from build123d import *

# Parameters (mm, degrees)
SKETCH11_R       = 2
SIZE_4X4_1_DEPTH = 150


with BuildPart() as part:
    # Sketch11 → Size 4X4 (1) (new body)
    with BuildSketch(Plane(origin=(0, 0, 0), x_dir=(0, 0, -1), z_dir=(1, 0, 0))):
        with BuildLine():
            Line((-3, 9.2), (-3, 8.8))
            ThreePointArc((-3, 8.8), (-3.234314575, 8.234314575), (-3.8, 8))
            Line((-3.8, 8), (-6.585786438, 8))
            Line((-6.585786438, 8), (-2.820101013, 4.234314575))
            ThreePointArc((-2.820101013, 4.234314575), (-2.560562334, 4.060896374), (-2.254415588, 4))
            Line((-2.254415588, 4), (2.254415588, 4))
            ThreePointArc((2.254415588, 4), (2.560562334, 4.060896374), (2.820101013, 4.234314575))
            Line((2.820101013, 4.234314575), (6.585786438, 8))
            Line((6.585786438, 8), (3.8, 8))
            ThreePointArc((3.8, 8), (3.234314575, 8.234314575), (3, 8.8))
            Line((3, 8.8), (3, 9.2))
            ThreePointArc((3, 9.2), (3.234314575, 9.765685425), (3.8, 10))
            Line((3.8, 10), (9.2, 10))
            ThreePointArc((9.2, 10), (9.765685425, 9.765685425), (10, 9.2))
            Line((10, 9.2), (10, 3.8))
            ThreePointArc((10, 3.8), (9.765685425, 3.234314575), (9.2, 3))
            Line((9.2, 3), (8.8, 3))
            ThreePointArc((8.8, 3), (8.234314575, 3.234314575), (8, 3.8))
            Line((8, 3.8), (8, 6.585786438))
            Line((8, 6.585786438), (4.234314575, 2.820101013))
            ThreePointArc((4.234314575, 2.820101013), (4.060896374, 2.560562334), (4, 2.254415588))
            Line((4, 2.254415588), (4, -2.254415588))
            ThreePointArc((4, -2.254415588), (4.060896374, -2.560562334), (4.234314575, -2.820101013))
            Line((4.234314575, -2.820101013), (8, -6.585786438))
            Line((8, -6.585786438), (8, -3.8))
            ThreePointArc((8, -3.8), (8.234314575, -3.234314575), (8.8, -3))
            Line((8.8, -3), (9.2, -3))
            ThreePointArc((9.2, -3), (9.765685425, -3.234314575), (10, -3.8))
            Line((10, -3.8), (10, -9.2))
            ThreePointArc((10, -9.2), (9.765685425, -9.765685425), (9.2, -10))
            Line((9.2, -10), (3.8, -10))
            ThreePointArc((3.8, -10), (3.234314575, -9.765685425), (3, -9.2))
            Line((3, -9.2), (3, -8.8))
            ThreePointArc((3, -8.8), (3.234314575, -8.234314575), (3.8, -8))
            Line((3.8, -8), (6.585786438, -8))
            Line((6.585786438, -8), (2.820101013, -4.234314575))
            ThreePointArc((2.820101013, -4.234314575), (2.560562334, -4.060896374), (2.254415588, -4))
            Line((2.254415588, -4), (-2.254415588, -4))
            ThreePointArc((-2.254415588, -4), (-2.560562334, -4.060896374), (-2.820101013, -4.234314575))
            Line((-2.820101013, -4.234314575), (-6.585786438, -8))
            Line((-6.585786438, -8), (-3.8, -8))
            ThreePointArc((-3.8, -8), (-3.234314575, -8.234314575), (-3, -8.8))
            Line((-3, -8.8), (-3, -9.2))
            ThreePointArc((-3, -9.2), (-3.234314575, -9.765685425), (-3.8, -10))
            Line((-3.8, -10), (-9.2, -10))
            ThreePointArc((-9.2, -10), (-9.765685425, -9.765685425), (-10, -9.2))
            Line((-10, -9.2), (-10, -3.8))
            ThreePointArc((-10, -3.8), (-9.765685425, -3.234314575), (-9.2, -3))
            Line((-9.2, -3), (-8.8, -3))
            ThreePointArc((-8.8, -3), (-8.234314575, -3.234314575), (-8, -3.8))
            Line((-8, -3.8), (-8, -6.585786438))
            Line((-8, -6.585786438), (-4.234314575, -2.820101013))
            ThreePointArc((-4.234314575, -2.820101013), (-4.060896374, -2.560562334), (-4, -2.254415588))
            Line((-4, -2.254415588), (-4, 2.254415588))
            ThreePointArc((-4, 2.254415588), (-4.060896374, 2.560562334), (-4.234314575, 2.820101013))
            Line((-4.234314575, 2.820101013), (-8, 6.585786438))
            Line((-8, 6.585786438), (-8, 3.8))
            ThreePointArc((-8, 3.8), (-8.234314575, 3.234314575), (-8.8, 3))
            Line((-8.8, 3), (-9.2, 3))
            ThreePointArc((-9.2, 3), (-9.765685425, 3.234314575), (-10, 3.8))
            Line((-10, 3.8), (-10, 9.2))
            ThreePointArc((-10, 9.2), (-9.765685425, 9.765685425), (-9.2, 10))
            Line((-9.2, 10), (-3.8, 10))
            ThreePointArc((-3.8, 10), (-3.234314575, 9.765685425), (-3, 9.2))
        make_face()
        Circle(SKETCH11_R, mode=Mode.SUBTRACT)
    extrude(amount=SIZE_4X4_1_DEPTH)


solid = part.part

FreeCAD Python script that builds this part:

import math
import FreeCAD as App
import Part
import Sketcher
Q = App.Units.Quantity

doc = App.newDocument("Part")
body = doc.addObject("PartDesign::Body", "Body")

# Sketch on YZ plane
sketch1 = body.newObject("Sketcher::SketchObject", "Sketch")
sketch1.AttachmentSupport = (doc.getObject("YZ_Plane"), [""])
sketch1.MapMode = "FlatFace"
sketch1.addGeometry([
    Part.LineSegment(App.Vector(8.8, 3, 0), App.Vector(9.2, 3, 0)),  # 0
    Part.ArcOfCircle(Part.Circle(App.Vector(9.2, 3.8, 0), App.Vector(0, 0, 1), 0.8), math.radians(-90), math.radians(0)),  # 1
    Part.LineSegment(App.Vector(10, 3.8, 0), App.Vector(10, 9.2, 0)),  # 2
    Part.ArcOfCircle(Part.Circle(App.Vector(9.2, 9.2, 0), App.Vector(0, 0, 1), 0.8), math.radians(0), math.radians(90)),  # 3
    Part.LineSegment(App.Vector(9.2, 10, 0), App.Vector(3.8, 10, 0)),  # 4
    Part.ArcOfCircle(Part.Circle(App.Vector(3.8, 9.2, 0), App.Vector(0, 0, 1), 0.8), math.radians(90), math.radians(180)),  # 5
    Part.LineSegment(App.Vector(3, 9.2, 0), App.Vector(3, 8.8, 0)),  # 6
    Part.ArcOfCircle(Part.Circle(App.Vector(3.8, 8.8, 0), App.Vector(0, 0, 1), 0.8), math.radians(180), math.radians(270)),  # 7
    Part.LineSegment(App.Vector(3.8, 8, 0), App.Vector(6.59, 8, 0)),  # 8
    Part.LineSegment(App.Vector(6.59, 8, 0), App.Vector(2.82, 4.23, 0)),  # 9
    Part.ArcOfCircle(Part.Circle(App.Vector(2.25, 4.8, 0), App.Vector(0, 0, 1), 0.8), math.radians(-90), math.radians(-45)),  # 10
    Part.LineSegment(App.Vector(2.25, 4, 0), App.Vector(-2.25, 4, 0)),  # 11
    Part.ArcOfCircle(Part.Circle(App.Vector(-2.25, 4.8, 0), App.Vector(0, 0, 1), 0.8), math.radians(-135), math.radians(-90)),  # 12
    Part.LineSegment(App.Vector(-2.82, 4.23, 0), App.Vector(-6.59, 8, 0)),  # 13
    Part.LineSegment(App.Vector(-6.59, 8, 0), App.Vector(-3.8, 8, 0)),  # 14
    Part.ArcOfCircle(Part.Circle(App.Vector(-3.8, 8.8, 0), App.Vector(0, 0, 1), 0.8), math.radians(-90), math.radians(0)),  # 15
    Part.LineSegment(App.Vector(-3, 8.8, 0), App.Vector(-3, 9.2, 0)),  # 16
    Part.ArcOfCircle(Part.Circle(App.Vector(-3.8, 9.2, 0), App.Vector(0, 0, 1), 0.8), math.radians(0), math.radians(90)),  # 17
    Part.LineSegment(App.Vector(-3.8, 10, 0), App.Vector(-9.2, 10, 0)),  # 18
    Part.ArcOfCircle(Part.Circle(App.Vector(-9.2, 9.2, 0), App.Vector(0, 0, 1), 0.8), math.radians(90), math.radians(180)),  # 19
    Part.LineSegment(App.Vector(-10, 9.2, 0), App.Vector(-10, 3.8, 0)),  # 20
    Part.ArcOfCircle(Part.Circle(App.Vector(-9.2, 3.8, 0), App.Vector(0, 0, 1), 0.8), math.radians(180), math.radians(270)),  # 21
    Part.LineSegment(App.Vector(-9.2, 3, 0), App.Vector(-8.8, 3, 0)),  # 22
    Part.ArcOfCircle(Part.Circle(App.Vector(-8.8, 3.8, 0), App.Vector(0, 0, 1), 0.8), math.radians(-90), math.radians(0)),  # 23
    Part.LineSegment(App.Vector(-8, 3.8, 0), App.Vector(-8, 6.59, 0)),  # 24
    Part.LineSegment(App.Vector(-8, 6.59, 0), App.Vector(-4.23, 2.82, 0)),  # 25
    Part.ArcOfCircle(Part.Circle(App.Vector(-4.8, 2.25, 0), App.Vector(0, 0, 1), 0.8), math.radians(0), math.radians(45)),  # 26
    Part.LineSegment(App.Vector(-4, 2.25, 0), App.Vector(-4, -2.25, 0)),  # 27
    Part.ArcOfCircle(Part.Circle(App.Vector(-4.8, -2.25, 0), App.Vector(0, 0, 1), 0.8), math.radians(-45), math.radians(0)),  # 28
    Part.LineSegment(App.Vector(-4.23, -2.82, 0), App.Vector(-8, -6.59, 0)),  # 29
    Part.LineSegment(App.Vector(-8, -6.59, 0), App.Vector(-8, -3.8, 0)),  # 30
    Part.ArcOfCircle(Part.Circle(App.Vector(-8.8, -3.8, 0), App.Vector(0, 0, 1), 0.8), math.radians(0), math.radians(90)),  # 31
    Part.LineSegment(App.Vector(-8.8, -3, 0), App.Vector(-9.2, -3, 0)),  # 32
    Part.ArcOfCircle(Part.Circle(App.Vector(-9.2, -3.8, 0), App.Vector(0, 0, 1), 0.8), math.radians(90), math.radians(180)),  # 33
    Part.LineSegment(App.Vector(-10, -3.8, 0), App.Vector(-10, -9.2, 0)),  # 34
    Part.ArcOfCircle(Part.Circle(App.Vector(-9.2, -9.2, 0), App.Vector(0, 0, 1), 0.8), math.radians(180), math.radians(270)),  # 35
    Part.LineSegment(App.Vector(-9.2, -10, 0), App.Vector(-3.8, -10, 0)),  # 36
    Part.ArcOfCircle(Part.Circle(App.Vector(-3.8, -9.2, 0), App.Vector(0, 0, 1), 0.8), math.radians(-90), math.radians(0)),  # 37
    Part.LineSegment(App.Vector(-3, -9.2, 0), App.Vector(-3, -8.8, 0)),  # 38
    Part.ArcOfCircle(Part.Circle(App.Vector(-3.8, -8.8, 0), App.Vector(0, 0, 1), 0.8), math.radians(0), math.radians(90)),  # 39
    Part.LineSegment(App.Vector(-3.8, -8, 0), App.Vector(-6.59, -8, 0)),  # 40
    Part.LineSegment(App.Vector(-6.59, -8, 0), App.Vector(-2.82, -4.23, 0)),  # 41
    Part.ArcOfCircle(Part.Circle(App.Vector(-2.25, -4.8, 0), App.Vector(0, 0, 1), 0.8), math.radians(90), math.radians(135)),  # 42
    Part.LineSegment(App.Vector(-2.25, -4, 0), App.Vector(2.25, -4, 0)),  # 43
    Part.ArcOfCircle(Part.Circle(App.Vector(2.25, -4.8, 0), App.Vector(0, 0, 1), 0.8), math.radians(45), math.radians(90)),  # 44
    Part.LineSegment(App.Vector(2.82, -4.23, 0), App.Vector(6.59, -8, 0)),  # 45
    Part.LineSegment(App.Vector(6.59, -8, 0), App.Vector(3.8, -8, 0)),  # 46
    Part.ArcOfCircle(Part.Circle(App.Vector(3.8, -8.8, 0), App.Vector(0, 0, 1), 0.8), math.radians(90), math.radians(180)),  # 47
    Part.LineSegment(App.Vector(3, -8.8, 0), App.Vector(3, -9.2, 0)),  # 48
    Part.ArcOfCircle(Part.Circle(App.Vector(3.8, -9.2, 0), App.Vector(0, 0, 1), 0.8), math.radians(180), math.radians(270)),  # 49
    Part.LineSegment(App.Vector(3.8, -10, 0), App.Vector(9.2, -10, 0)),  # 50
    Part.ArcOfCircle(Part.Circle(App.Vector(9.2, -9.2, 0), App.Vector(0, 0, 1), 0.8), math.radians(-90), math.radians(0)),  # 51
    Part.LineSegment(App.Vector(10, -9.2, 0), App.Vector(10, -3.8, 0)),  # 52
    Part.ArcOfCircle(Part.Circle(App.Vector(9.2, -3.8, 0), App.Vector(0, 0, 1), 0.8), math.radians(0), math.radians(90)),  # 53
    Part.LineSegment(App.Vector(9.2, -3, 0), App.Vector(8.8, -3, 0)),  # 54
    Part.ArcOfCircle(Part.Circle(App.Vector(8.8, -3.8, 0), App.Vector(0, 0, 1), 0.8), math.radians(90), math.radians(180)),  # 55
    Part.LineSegment(App.Vector(8, -3.8, 0), App.Vector(8, -6.59, 0)),  # 56
    Part.LineSegment(App.Vector(8, -6.59, 0), App.Vector(4.23, -2.82, 0)),  # 57
    Part.ArcOfCircle(Part.Circle(App.Vector(4.8, -2.25, 0), App.Vector(0, 0, 1), 0.8), math.radians(180), math.radians(225)),  # 58
    Part.LineSegment(App.Vector(4, -2.25, 0), App.Vector(4, 2.25, 0)),  # 59
    Part.ArcOfCircle(Part.Circle(App.Vector(4.8, 2.25, 0), App.Vector(0, 0, 1), 0.8), math.radians(135), math.radians(180)),  # 60
    Part.LineSegment(App.Vector(4.23, 2.82, 0), App.Vector(8, 6.59, 0)),  # 61
    Part.LineSegment(App.Vector(8, 6.59, 0), App.Vector(8, 3.8, 0)),  # 62
    Part.ArcOfCircle(Part.Circle(App.Vector(8.8, 3.8, 0), App.Vector(0, 0, 1), 0.8), math.radians(180), math.radians(270)),  # 63
    Part.Circle(App.Vector(0, 0, 0), App.Vector(0, 0, 1), 2),  # 64
], False)
sketch1.addConstraint([
    Sketcher.Constraint("Tangent", 0, 2, 1, 1),
    Sketcher.Constraint("Tangent", 1, 2, 2, 1),
    Sketcher.Constraint("Tangent", 2, 2, 3, 1),
    Sketcher.Constraint("Tangent", 3, 2, 4, 1),
    Sketcher.Constraint("Tangent", 4, 2, 5, 1),
    Sketcher.Constraint("Tangent", 5, 2, 6, 1),
    Sketcher.Constraint("Tangent", 6, 2, 7, 1),
    Sketcher.Constraint("Tangent", 7, 2, 8, 1),
    Sketcher.Constraint("Coincident", 8, 2, 9, 1),
    Sketcher.Constraint("Tangent", 9, 2, 10, 2),
    Sketcher.Constraint("Tangent", 10, 1, 11, 1),
    Sketcher.Constraint("Tangent", 11, 2, 12, 2),
    Sketcher.Constraint("Tangent", 12, 1, 13, 1),
    Sketcher.Constraint("Coincident", 13, 2, 14, 1),
    Sketcher.Constraint("Tangent", 14, 2, 15, 1),
    Sketcher.Constraint("Tangent", 15, 2, 16, 1),
    Sketcher.Constraint("Tangent", 16, 2, 17, 1),
    Sketcher.Constraint("Tangent", 17, 2, 18, 1),
    Sketcher.Constraint("Tangent", 18, 2, 19, 1),
    Sketcher.Constraint("Tangent", 19, 2, 20, 1),
    Sketcher.Constraint("Tangent", 20, 2, 21, 1),
    Sketcher.Constraint("Tangent", 21, 2, 22, 1),
    Sketcher.Constraint("Tangent", 22, 2, 23, 1),
    Sketcher.Constraint("Tangent", 23, 2, 24, 1),
    Sketcher.Constraint("Coincident", 24, 2, 25, 1),
    Sketcher.Constraint("Tangent", 25, 2, 26, 2),
    Sketcher.Constraint("Tangent", 26, 1, 27, 1),
    Sketcher.Constraint("Tangent", 27, 2, 28, 2),
    Sketcher.Constraint("Tangent", 28, 1, 29, 1),
    Sketcher.Constraint("Coincident", 29, 2, 30, 1),
    Sketcher.Constraint("Tangent", 30, 2, 31, 1),
    Sketcher.Constraint("Tangent", 31, 2, 32, 1),
    Sketcher.Constraint("Tangent", 32, 2, 33, 1),
    Sketcher.Constraint("Tangent", 33, 2, 34, 1),
    Sketcher.Constraint("Tangent", 34, 2, 35, 1),
    Sketcher.Constraint("Tangent", 35, 2, 36, 1),
    Sketcher.Constraint("Tangent", 36, 2, 37, 1),
    Sketcher.Constraint("Tangent", 37, 2, 38, 1),
    Sketcher.Constraint("Tangent", 38, 2, 39, 1),
    Sketcher.Constraint("Tangent", 39, 2, 40, 1),
    Sketcher.Constraint("Coincident", 40, 2, 41, 1),
    Sketcher.Constraint("Tangent", 41, 2, 42, 2),
    Sketcher.Constraint("Tangent", 42, 1, 43, 1),
    Sketcher.Constraint("Tangent", 43, 2, 44, 2),
    Sketcher.Constraint("Tangent", 44, 1, 45, 1),
    Sketcher.Constraint("Coincident", 45, 2, 46, 1),
    Sketcher.Constraint("Tangent", 46, 2, 47, 1),
    Sketcher.Constraint("Tangent", 47, 2, 48, 1),
    Sketcher.Constraint("Tangent", 48, 2, 49, 1),
    Sketcher.Constraint("Tangent", 49, 2, 50, 1),
    Sketcher.Constraint("Tangent", 50, 2, 51, 1),
    Sketcher.Constraint("Tangent", 51, 2, 52, 1),
    Sketcher.Constraint("Tangent", 52, 2, 53, 1),
    Sketcher.Constraint("Tangent", 53, 2, 54, 1),
    Sketcher.Constraint("Tangent", 54, 2, 55, 1),
    Sketcher.Constraint("Tangent", 55, 2, 56, 1),
    Sketcher.Constraint("Coincident", 56, 2, 57, 1),
    Sketcher.Constraint("Tangent", 57, 2, 58, 2),
    Sketcher.Constraint("Tangent", 58, 1, 59, 1),
    Sketcher.Constraint("Tangent", 59, 2, 60, 2),
    Sketcher.Constraint("Tangent", 60, 1, 61, 1),
    Sketcher.Constraint("Coincident", 61, 2, 62, 1),
    Sketcher.Constraint("Tangent", 62, 2, 63, 1),
    Sketcher.Constraint("Tangent", 63, 2, 0, 1),
    Sketcher.Constraint("Horizontal", 0),
    Sketcher.Constraint("Vertical", 2),
    Sketcher.Constraint("Horizontal", 4),
    Sketcher.Constraint("Vertical", 6),
    Sketcher.Constraint("Horizontal", 8),
    Sketcher.Constraint("Horizontal", 11),
    Sketcher.Constraint("Horizontal", 14),
    Sketcher.Constraint("Vertical", 16),
    Sketcher.Constraint("Horizontal", 18),
    Sketcher.Constraint("Vertical", 20),
    Sketcher.Constraint("Horizontal", 22),
    Sketcher.Constraint("Vertical", 24),
    Sketcher.Constraint("Vertical", 27),
    Sketcher.Constraint("Vertical", 30),
    Sketcher.Constraint("Horizontal", 32),
    Sketcher.Constraint("Vertical", 34),
    Sketcher.Constraint("Horizontal", 36),
    Sketcher.Constraint("Vertical", 38),
    Sketcher.Constraint("Horizontal", 40),
    Sketcher.Constraint("Horizontal", 43),
    Sketcher.Constraint("Horizontal", 46),
    Sketcher.Constraint("Vertical", 48),
    Sketcher.Constraint("Horizontal", 50),
    Sketcher.Constraint("Vertical", 52),
    Sketcher.Constraint("Horizontal", 54),
    Sketcher.Constraint("Vertical", 56),
    Sketcher.Constraint("Vertical", 59),
    Sketcher.Constraint("Vertical", 62),
    Sketcher.Constraint("Coincident", 64, 3, -1, 1),
    Sketcher.Constraint("Equal", 1, 3),
    Sketcher.Constraint("Equal", 3, 5),
    Sketcher.Constraint("Equal", 5, 7),
    Sketcher.Constraint("Equal", 7, 10),
    Sketcher.Constraint("Equal", 10, 12),
    Sketcher.Constraint("Equal", 12, 15),
    Sketcher.Constraint("Equal", 15, 17),
    Sketcher.Constraint("Equal", 17, 19),
    Sketcher.Constraint("Equal", 19, 21),
    Sketcher.Constraint("Equal", 21, 23),
    Sketcher.Constraint("Equal", 23, 26),
    Sketcher.Constraint("Equal", 26, 28),
    Sketcher.Constraint("Equal", 28, 31),
    Sketcher.Constraint("Equal", 31, 33),
    Sketcher.Constraint("Equal", 33, 35),
    Sketcher.Constraint("Equal", 35, 37),
    Sketcher.Constraint("Equal", 37, 39),
    Sketcher.Constraint("Equal", 39, 42),
    Sketcher.Constraint("Equal", 42, 44),
    Sketcher.Constraint("Equal", 44, 47),
    Sketcher.Constraint("Equal", 47, 49),
    Sketcher.Constraint("Equal", 49, 51),
    Sketcher.Constraint("Equal", 51, 53),
    Sketcher.Constraint("Equal", 53, 55),
    Sketcher.Constraint("Equal", 55, 58),
    Sketcher.Constraint("Equal", 58, 60),
    Sketcher.Constraint("Equal", 60, 63),
    Sketcher.Constraint("Symmetric", 1, 3, 33, 3, -1, 1),
    Sketcher.Constraint("Symmetric", 5, 3, 37, 3, -1, 1),
    Sketcher.Constraint("Symmetric", 10, 3, 42, 3, -1, 1),
    Sketcher.Constraint("Symmetric", 15, 3, 47, 3, -1, 1),
    Sketcher.Constraint("Symmetric", 19, 3, 51, 3, -1, 1),
    Sketcher.Constraint("Symmetric", 23, 3, 55, 3, -1, 1),
    Sketcher.Constraint("Symmetric", 26, 3, 58, 3, -1, 1),
    Sketcher.Constraint("Symmetric", 8, 2, 40, 2, -1, 1),
    Sketcher.Constraint("Symmetric", 12, 1, 44, 1, -1, 1),
    Sketcher.Constraint("Symmetric", 28, 1, 60, 1, -1, 1),
    Sketcher.Constraint("Symmetric", 7, 3, 15, 3, -2),
    Sketcher.Constraint("Symmetric", 3, 3, 19, 3, -2),
    Sketcher.Constraint("Symmetric", 31, 3, 55, 3, -2),
    Sketcher.Constraint("Symmetric", 9, 2, 12, 1, -2),
    Sketcher.Constraint("Symmetric", 28, 1, 57, 2, -2),
    Sketcher.Constraint("Symmetric", 24, 2, 61, 2, -2),
    Sketcher.Constraint("Perpendicular", 9, 13),
    Sketcher.Constraint("Parallel", 13, 25),
    Sketcher.Constraint("Equal", 50, 2),
    Sketcher.Constraint("Equal", 54, 6),
    Sketcher.Constraint("Equal", 46, 24),
    Sketcher.Constraint("Equal", 43, 27),
    Sketcher.Constraint("Equal", 13, 25),
    Sketcher.Constraint("Diameter", 64, Q("4 mm")),
    Sketcher.Constraint("Radius", 1, Q("0.8 mm")),
    Sketcher.Constraint("DistanceX", 0, 1, 0, 2, Q("0.4 mm")),
    Sketcher.Constraint("DistanceX", 4, 2, 4, 1, Q("5.4 mm")),
    Sketcher.Constraint("DistanceY", -1, 1, 0, 2, Q("3 mm")),
    Sketcher.Constraint("DistanceY", -1, 1, 10, 1, Q("4 mm")),
    Sketcher.Constraint("DistanceX", 11, 2, 11, 1, Q("4.508831 mm")),
])
pad1 = body.newObject("PartDesign::Pad", "Pad")
pad1.Profile = sketch1
pad1.Length = 150

doc.recompute()
